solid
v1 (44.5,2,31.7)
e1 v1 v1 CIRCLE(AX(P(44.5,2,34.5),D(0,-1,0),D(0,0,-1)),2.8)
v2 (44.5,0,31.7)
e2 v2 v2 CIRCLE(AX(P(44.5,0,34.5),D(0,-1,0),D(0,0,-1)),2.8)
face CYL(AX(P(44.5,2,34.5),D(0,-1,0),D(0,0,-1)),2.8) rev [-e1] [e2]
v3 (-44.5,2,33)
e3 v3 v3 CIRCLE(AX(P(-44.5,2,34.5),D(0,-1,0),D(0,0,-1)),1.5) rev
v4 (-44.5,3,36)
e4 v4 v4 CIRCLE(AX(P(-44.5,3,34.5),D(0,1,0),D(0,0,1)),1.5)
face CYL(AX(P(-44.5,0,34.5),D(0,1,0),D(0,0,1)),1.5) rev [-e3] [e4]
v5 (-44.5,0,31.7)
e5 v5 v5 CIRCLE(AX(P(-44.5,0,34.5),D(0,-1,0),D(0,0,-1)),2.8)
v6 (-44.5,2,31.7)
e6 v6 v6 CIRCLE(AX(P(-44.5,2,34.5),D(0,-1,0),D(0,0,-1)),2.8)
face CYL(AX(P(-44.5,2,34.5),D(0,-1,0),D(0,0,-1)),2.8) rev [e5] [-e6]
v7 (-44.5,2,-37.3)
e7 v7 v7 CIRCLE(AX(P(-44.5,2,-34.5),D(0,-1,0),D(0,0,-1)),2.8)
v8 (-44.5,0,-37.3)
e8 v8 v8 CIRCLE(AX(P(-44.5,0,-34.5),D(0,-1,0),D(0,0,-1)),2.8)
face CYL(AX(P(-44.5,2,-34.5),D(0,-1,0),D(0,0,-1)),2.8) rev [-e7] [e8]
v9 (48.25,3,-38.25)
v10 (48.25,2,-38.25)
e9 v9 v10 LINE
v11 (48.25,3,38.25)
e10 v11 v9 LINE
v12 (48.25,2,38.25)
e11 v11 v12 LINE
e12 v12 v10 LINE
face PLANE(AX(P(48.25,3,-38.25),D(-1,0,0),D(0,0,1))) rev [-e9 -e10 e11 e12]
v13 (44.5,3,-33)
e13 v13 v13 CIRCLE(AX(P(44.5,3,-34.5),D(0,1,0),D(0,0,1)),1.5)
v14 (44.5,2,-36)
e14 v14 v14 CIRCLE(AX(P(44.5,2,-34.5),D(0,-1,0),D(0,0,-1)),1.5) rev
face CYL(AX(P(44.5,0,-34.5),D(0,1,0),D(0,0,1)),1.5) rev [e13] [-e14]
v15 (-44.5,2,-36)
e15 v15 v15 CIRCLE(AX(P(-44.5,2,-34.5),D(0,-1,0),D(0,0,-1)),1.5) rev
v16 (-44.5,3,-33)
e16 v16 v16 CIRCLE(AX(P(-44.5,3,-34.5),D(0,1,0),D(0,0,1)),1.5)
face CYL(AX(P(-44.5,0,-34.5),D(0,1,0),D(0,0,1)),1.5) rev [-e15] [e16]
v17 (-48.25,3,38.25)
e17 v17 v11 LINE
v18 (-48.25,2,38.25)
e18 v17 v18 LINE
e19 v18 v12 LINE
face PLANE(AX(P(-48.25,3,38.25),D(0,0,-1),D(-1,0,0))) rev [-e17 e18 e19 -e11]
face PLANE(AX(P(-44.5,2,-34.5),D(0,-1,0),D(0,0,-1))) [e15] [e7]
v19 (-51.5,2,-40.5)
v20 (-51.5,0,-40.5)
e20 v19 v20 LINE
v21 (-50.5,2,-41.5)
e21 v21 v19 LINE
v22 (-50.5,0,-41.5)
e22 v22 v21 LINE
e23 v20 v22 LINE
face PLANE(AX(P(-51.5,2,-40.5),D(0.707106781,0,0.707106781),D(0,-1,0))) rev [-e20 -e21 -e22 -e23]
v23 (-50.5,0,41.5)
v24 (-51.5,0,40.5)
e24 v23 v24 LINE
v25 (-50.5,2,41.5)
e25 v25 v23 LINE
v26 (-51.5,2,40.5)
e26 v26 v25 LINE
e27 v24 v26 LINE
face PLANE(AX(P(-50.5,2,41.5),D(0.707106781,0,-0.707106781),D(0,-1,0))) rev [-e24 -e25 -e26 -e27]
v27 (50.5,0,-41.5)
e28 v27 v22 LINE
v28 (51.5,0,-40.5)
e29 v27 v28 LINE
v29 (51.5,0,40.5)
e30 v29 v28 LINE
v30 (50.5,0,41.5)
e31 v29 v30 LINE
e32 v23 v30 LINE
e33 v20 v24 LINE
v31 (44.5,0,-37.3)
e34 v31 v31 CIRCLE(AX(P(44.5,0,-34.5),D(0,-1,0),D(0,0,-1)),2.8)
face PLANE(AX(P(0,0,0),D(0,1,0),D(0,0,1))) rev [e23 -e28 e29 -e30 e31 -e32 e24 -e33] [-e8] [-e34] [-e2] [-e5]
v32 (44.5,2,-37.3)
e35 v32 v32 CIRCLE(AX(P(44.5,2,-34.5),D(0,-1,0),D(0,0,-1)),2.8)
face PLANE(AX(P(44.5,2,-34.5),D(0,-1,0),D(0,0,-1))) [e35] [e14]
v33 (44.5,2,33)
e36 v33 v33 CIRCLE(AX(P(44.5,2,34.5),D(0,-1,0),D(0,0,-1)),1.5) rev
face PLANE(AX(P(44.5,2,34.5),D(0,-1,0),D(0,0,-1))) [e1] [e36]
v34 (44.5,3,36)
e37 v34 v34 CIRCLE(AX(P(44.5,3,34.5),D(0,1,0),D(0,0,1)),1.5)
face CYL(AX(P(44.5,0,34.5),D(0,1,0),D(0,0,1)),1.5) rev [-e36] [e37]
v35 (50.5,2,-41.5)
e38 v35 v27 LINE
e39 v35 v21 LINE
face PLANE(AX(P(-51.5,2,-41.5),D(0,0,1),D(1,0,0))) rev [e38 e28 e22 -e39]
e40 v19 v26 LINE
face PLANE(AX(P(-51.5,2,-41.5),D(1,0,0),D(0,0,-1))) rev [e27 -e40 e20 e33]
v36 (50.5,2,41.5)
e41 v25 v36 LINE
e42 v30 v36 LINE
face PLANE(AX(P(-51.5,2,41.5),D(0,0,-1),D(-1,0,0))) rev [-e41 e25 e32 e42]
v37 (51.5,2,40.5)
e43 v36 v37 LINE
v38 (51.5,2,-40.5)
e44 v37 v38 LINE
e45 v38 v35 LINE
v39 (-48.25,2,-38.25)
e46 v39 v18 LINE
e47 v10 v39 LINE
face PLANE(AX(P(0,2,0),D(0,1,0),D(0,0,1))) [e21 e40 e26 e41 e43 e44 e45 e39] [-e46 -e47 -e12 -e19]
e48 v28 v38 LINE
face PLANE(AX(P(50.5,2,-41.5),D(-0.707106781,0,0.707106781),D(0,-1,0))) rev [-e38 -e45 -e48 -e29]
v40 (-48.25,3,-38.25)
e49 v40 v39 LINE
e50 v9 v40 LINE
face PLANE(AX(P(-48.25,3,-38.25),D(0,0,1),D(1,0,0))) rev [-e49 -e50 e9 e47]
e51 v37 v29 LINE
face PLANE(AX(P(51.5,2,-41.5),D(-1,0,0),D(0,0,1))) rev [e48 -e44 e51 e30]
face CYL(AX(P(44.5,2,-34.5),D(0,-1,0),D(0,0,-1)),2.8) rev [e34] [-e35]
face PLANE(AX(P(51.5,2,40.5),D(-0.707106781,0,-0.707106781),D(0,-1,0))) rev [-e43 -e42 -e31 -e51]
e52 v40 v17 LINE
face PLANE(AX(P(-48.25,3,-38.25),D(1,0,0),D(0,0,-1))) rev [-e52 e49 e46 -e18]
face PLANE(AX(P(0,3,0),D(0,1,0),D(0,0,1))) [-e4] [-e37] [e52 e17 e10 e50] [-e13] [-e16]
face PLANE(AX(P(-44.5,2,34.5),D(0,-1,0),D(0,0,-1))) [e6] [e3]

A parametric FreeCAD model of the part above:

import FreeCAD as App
import Part
import Sketcher
Q = App.Units.Quantity


def edges_at(feature, points):
    """Names of the edges that pass closest to the given points."""
    edges = feature.Shape.Edges
    near = lambda p: min(range(len(edges)), key=lambda i: edges[i].distToShape(Part.Vertex(*p))[0])
    return sorted({f"Edge{near(p) + 1}" for p in points})

doc = App.newDocument("Part")
body = doc.addObject("PartDesign::Body", "Body")

# Sketch on XZ plane
sketch1 = doc.addObject("Sketcher::SketchObject", "Sketch")
body.addObject(sketch1)
sketch1.AttachmentSupport = (doc.XZ_Plane, [""])
sketch1.MapMode = "FlatFace"
sketch1.addGeometry([
    Part.LineSegment(App.Vector(-51.5, -41.5, 0), App.Vector(-51.5, 41.5, 0)),
    Part.LineSegment(App.Vector(-51.5, 41.5, 0), App.Vector(51.5, 41.5, 0)),
    Part.LineSegment(App.Vector(51.5, 41.5, 0), App.Vector(51.5, -41.5, 0)),
    Part.LineSegment(App.Vector(51.5, -41.5, 0), App.Vector(-51.5, -41.5, 0)),
], False)
sketch1.addConstraint([
    Sketcher.Constraint("Coincident", 0, 2, 1, 1),
    Sketcher.Constraint("Coincident", 1, 2, 2, 1),
    Sketcher.Constraint("Coincident", 2, 2, 3, 1),
    Sketcher.Constraint("Coincident", 3, 2, 0, 1),
    Sketcher.Constraint("Vertical", 0),
    Sketcher.Constraint("Horizontal", 1),
    Sketcher.Constraint("Vertical", 2),
    Sketcher.Constraint("Horizontal", 3),
    Sketcher.Constraint("Symmetric", 0, 2, 2, 2, -1, 1),
    Sketcher.Constraint("DistanceX", 1, 1, 1, 2, Q("103 mm")),
    Sketcher.Constraint("DistanceY", 0, 1, 0, 2, Q("83 mm")),
])
pad1 = doc.addObject("PartDesign::Pad", "Pad")
body.addObject(pad1)
pad1.Profile = sketch1
pad1.Length = 2
pad1.Reversed = True

# Sketch on XZ plane
sketch2 = doc.addObject("Sketcher::SketchObject", "Sketch001")
body.addObject(sketch2)
sketch2.AttachmentSupport = (doc.XZ_Plane, [""])
sketch2.MapMode = "FlatFace"
sketch2.AttachmentOffset = App.Placement(App.Vector(0, 0, -2), App.Rotation())
sketch2.addGeometry([
    Part.LineSegment(App.Vector(-48.25, -38.25, 0), App.Vector(-48.25, 38.25, 0)),
    Part.LineSegment(App.Vector(-48.25, 38.25, 0), App.Vector(48.25, 38.25, 0)),
    Part.LineSegment(App.Vector(48.25, 38.25, 0), App.Vector(48.25, -38.25, 0)),
    Part.LineSegment(App.Vector(48.25, -38.25, 0), App.Vector(-48.25, -38.25, 0)),
], False)
sketch2.addConstraint([
    Sketcher.Constraint("Coincident", 0, 2, 1, 1),
    Sketcher.Constraint("Coincident", 1, 2, 2, 1),
    Sketcher.Constraint("Coincident", 2, 2, 3, 1),
    Sketcher.Constraint("Coincident", 3, 2, 0, 1),
    Sketcher.Constraint("Vertical", 0),
    Sketcher.Constraint("Horizontal", 1),
    Sketcher.Constraint("Vertical", 2),
    Sketcher.Constraint("Horizontal", 3),
    Sketcher.Constraint("Symmetric", 0, 2, 2, 2, -1, 1),
    Sketcher.Constraint("DistanceX", 1, 1, 1, 2, Q("96.5 mm")),
    Sketcher.Constraint("DistanceY", 0, 1, 0, 2, Q("76.5 mm")),
])
pad2 = doc.addObject("PartDesign::Pad", "Pad001")
body.addObject(pad2)
pad2.Profile = sketch2
pad2.Length = 1
pad2.Reversed = True
doc.recompute()

chamfer = doc.addObject("PartDesign::Chamfer", "Chamfer")
body.addObject(chamfer)
chamfer.Base = (pad2, edges_at(pad2, [
    (51.5, 1, 41.5),
    (-51.5, 1, 41.5),
    (-51.5, 1, -41.5),
    (51.5, 1, -41.5),
]))
chamfer.Size = 1

# Sketch on XZ plane
sketch3 = doc.addObject("Sketcher::SketchObject", "Sketch002")
body.addObject(sketch3)
sketch3.AttachmentSupport = (doc.XZ_Plane, [""])
sketch3.MapMode = "FlatFace"
sketch3.AttachmentOffset = App.Placement(App.Vector(0, 0, -3), App.Rotation())
sketch3.addGeometry([
    Part.Circle(App.Vector(-44.5, -34.5, 0), App.Vector(0, 0, 1), 1.5),
    Part.Circle(App.Vector(44.5, -34.5, 0), App.Vector(0, 0, 1), 1.5),
    Part.Circle(App.Vector(44.5, 34.5, 0), App.Vector(0, 0, 1), 1.5),
    Part.Circle(App.Vector(-44.5, 34.5, 0), App.Vector(0, 0, 1), 1.5),
], False)
sketch3.addConstraint([
    Sketcher.Constraint("Equal", 0, 1),
    Sketcher.Constraint("Equal", 1, 2),
    Sketcher.Constraint("Equal", 2, 3),
    Sketcher.Constraint("Symmetric", 0, 3, 2, 3, -1, 1),
    Sketcher.Constraint("Symmetric", 1, 3, 3, 3, -1, 1),
    Sketcher.Constraint("Symmetric", 0, 3, 1, 3, -2),
    Sketcher.Constraint("Diameter", 0, Q("3 mm")),
    Sketcher.Constraint("DistanceX", 0, 3, 1, 3, Q("89 mm")),
    Sketcher.Constraint("DistanceY", 1, 3, 2, 3, Q("69 mm")),
])
pocket1 = doc.addObject("PartDesign::Pocket", "Pocket")
body.addObject(pocket1)
pocket1.Profile = sketch3
pocket1.Type = "ThroughAll"
pocket1.Reversed = True

# Sketch on XZ plane
sketch4 = doc.addObject("Sketcher::SketchObject", "Sketch003")
body.addObject(sketch4)
sketch4.AttachmentSupport = (doc.XZ_Plane, [""])
sketch4.MapMode = "FlatFace"
sketch4.addGeometry([
    Part.Circle(App.Vector(-44.5, 34.5, 0), App.Vector(0, 0, 1), 2.8),
    Part.Circle(App.Vector(44.5, 34.5, 0), App.Vector(0, 0, 1), 2.8),
    Part.Circle(App.Vector(44.5, -34.5, 0), App.Vector(0, 0, 1), 2.8),
    Part.Circle(App.Vector(-44.5, -34.5, 0), App.Vector(0, 0, 1), 2.8),
], False)
sketch4.addConstraint([
    Sketcher.Constraint("Equal", 0, 1),
    Sketcher.Constraint("Equal", 1, 2),
    Sketcher.Constraint("Equal", 2, 3),
    Sketcher.Constraint("Symmetric", 0, 3, 2, 3, -1, 1),
    Sketcher.Constraint("Symmetric", 1, 3, 3, 3, -1, 1),
    Sketcher.Constraint("Symmetric", 0, 3, 1, 3, -2),
    Sketcher.Constraint("Diameter", 0, Q("5.6 mm")),
    Sketcher.Constraint("DistanceX", 0, 3, 1, 3, Q("89 mm")),
    Sketcher.Constraint("DistanceY", 2, 3, 1, 3, Q("69 mm")),
])
pocket2 = doc.addObject("PartDesign::Pocket", "Pocket001")
body.addObject(pocket2)
pocket2.Profile = sketch4
pocket2.Length = 2

doc.recompute()
